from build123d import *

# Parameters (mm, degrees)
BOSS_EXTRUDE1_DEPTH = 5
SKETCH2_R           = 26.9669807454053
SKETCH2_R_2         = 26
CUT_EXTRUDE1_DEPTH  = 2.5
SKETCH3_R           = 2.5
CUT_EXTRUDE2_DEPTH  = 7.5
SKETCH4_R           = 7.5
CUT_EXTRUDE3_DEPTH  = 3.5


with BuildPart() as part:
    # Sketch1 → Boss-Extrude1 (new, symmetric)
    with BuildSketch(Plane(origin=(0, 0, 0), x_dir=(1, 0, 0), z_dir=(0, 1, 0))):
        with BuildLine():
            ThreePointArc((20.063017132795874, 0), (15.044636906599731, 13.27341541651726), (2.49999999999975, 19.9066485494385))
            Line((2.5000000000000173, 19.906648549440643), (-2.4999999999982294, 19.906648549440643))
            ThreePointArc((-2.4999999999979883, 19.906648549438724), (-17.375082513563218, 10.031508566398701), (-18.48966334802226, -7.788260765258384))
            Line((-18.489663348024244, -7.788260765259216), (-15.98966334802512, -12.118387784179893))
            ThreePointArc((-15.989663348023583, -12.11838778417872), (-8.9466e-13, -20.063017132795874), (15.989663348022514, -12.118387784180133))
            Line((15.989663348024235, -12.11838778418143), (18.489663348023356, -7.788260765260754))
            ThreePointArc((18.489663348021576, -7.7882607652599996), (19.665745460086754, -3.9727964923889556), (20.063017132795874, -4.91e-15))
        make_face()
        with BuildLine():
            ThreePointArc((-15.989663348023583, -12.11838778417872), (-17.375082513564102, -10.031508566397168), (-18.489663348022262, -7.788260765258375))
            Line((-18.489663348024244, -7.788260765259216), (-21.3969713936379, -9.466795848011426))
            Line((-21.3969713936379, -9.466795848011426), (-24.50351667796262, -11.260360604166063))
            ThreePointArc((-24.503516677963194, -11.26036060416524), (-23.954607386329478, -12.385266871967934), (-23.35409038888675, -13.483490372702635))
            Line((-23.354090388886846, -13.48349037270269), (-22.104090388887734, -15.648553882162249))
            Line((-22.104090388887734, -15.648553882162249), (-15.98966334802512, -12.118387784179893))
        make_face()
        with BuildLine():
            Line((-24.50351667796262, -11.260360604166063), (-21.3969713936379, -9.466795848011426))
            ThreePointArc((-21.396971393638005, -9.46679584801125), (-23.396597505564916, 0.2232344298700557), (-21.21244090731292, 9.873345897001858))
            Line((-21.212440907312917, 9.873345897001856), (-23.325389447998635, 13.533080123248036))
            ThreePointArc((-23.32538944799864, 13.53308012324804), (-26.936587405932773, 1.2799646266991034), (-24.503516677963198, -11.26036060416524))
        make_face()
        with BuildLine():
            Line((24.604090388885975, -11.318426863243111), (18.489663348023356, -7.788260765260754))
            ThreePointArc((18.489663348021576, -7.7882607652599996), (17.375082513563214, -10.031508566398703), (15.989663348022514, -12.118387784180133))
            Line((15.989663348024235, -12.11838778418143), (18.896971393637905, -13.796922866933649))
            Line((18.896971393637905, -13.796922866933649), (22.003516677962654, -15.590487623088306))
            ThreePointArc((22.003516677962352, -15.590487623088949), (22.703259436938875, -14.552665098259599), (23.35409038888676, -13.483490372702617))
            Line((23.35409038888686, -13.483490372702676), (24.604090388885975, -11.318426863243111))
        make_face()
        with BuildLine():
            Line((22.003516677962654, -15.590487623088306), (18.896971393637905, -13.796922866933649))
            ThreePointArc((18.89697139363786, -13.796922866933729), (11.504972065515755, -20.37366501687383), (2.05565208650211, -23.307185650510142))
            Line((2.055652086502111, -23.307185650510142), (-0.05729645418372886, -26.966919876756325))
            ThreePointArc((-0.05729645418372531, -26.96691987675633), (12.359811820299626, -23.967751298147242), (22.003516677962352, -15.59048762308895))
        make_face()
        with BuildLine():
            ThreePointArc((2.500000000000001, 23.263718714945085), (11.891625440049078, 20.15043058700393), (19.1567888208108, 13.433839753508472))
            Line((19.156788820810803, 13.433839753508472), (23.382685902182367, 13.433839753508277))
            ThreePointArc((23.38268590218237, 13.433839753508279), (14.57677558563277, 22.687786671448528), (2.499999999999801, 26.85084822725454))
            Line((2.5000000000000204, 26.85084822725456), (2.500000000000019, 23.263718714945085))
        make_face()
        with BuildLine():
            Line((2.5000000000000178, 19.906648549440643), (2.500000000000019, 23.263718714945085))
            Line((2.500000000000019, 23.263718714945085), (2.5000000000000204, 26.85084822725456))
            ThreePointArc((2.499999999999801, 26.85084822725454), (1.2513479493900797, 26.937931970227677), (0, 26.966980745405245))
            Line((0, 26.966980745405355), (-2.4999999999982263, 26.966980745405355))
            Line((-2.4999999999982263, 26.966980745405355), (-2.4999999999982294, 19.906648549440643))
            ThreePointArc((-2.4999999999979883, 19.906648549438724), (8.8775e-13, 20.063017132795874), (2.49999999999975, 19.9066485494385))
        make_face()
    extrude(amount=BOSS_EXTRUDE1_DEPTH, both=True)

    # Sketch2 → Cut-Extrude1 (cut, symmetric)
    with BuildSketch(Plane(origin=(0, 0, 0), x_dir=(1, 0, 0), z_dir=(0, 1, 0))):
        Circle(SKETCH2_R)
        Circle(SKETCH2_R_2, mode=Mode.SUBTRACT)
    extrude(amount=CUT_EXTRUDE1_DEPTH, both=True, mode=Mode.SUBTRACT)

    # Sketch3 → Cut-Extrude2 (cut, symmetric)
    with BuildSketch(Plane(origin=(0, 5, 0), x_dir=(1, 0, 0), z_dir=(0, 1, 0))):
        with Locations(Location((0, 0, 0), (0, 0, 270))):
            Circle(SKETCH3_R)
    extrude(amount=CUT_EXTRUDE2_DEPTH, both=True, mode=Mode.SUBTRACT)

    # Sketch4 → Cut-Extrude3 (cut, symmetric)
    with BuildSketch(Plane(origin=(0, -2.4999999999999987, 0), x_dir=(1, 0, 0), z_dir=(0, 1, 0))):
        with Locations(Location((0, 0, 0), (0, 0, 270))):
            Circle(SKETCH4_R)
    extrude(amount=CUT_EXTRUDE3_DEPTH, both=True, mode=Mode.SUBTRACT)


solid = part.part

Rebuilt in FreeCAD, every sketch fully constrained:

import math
import FreeCAD as App
import Part
import Sketcher
Q = App.Units.Quantity

doc = App.newDocument("Part")
params = doc.addObject("Spreadsheet::Sheet", "Params")
for row, (alias, value) in enumerate([
    ("sketch1_width", "5 mm"),
    ("sketch1_length", "5 mm"),
    ("pad1_length", "10 mm"),
    ("sketch2_diameter", "52 mm"),
    ("pocket1_length", "5 mm"),
    ("sketch3_diameter", "5 mm"),
    ("pocket2_length", "15 mm"),
    ("sketch4_diameter", "15 mm"),
    ("pocket3_length", "7 mm"),
], start=1):
    params.set(f"A{row}", alias)
    params.set(f"B{row}", "=" + value)
    params.setAlias(f"B{row}", alias)

body = doc.addObject("PartDesign::Body", "Body")
body.AllowCompound = True

# Sketch on XZ plane
sketch1 = doc.addObject("Sketcher::SketchObject", "Sketch")
body.addObject(sketch1)
sketch1.AttachmentSupport = (doc.XZ_Plane, [""])
sketch1.MapMode = "FlatFace"
sketch1.addGeometry([
    Part.LineSegment(App.Vector(2.5, -19.906649, 0), App.Vector(-2.5, -19.906649, 0)),  # 0
    Part.ArcOfCircle(Part.Circle(App.Vector(0, 0, 0), App.Vector(0, 0, 1), 20.063017), math.radians(157.158083), math.radians(262.841917)),  # 1
    Part.LineSegment(App.Vector(-18.489663, 7.788261, 0), App.Vector(-15.989663, 12.118388, 0)),  # 2
    Part.ArcOfCircle(Part.Circle(App.Vector(0, 0, 0), App.Vector(0, 0, 1), 20.063017), math.radians(37.158083), math.radians(142.841917)),  # 3
    Part.LineSegment(App.Vector(15.989663, 12.118388, 0), App.Vector(18.489663, 7.788261, 0)),  # 4
    Part.ArcOfCircle(Part.Circle(App.Vector(0, 0, 0), App.Vector(0, 0, 1), 20.063017), math.radians(-82.841917), math.radians(22.841917)),  # 5
    Part.ArcOfCircle(Part.Circle(App.Vector(0, 0, 0), App.Vector(0, 0, 1), 20.063017), math.radians(142.841917), math.radians(157.158083)),  # 6
    Part.LineSegment(App.Vector(-18.489663, 7.788261, 0), App.Vector(-21.396971, 9.466796, 0)),  # 7
    Part.ArcOfCircle(Part.Circle(App.Vector(0, 0, 0), App.Vector(0, 0, 1), 23.397662), math.radians(156.133664), math.radians(204.959657)),  # 8
    Part.LineSegment(App.Vector(-21.212441, -9.873346, 0), App.Vector(-23.325389, -13.53308, 0)),  # 9
    Part.ArcOfCircle(Part.Circle(App.Vector(0, 0, 0), App.Vector(0, 0, 1), 26.966981), math.radians(150), math.radians(210.121736)),  # 10
    Part.LineSegment(App.Vector(-23.35409, 13.48349, 0), App.Vector(-22.10409, 15.648554, 0)),  # 11
    Part.LineSegment(App.Vector(-22.10409, 15.648554, 0), App.Vector(-15.989663, 12.118388, 0)),  # 12
    Part.LineSegment(App.Vector(24.60409, 11.318427, 0), App.Vector(18.489663, 7.788261, 0)),  # 13
    Part.ArcOfCircle(Part.Circle(App.Vector(0, 0, 0), App.Vector(0, 0, 1), 20.063017), math.radians(22.841917), math.radians(37.158083)),  # 14
    Part.LineSegment(App.Vector(15.989663, 12.118388, 0), App.Vector(18.896971, 13.796923, 0)),  # 15
    Part.ArcOfCircle(Part.Circle(App.Vector(0, 0, 0), App.Vector(0, 0, 1), 23.397662), math.radians(36.133664), math.radians(84.959657)),  # 16
    Part.LineSegment(App.Vector(2.055652, 23.307186, 0), App.Vector(-0.057296, 26.96692, 0)),  # 17
    Part.ArcOfCircle(Part.Circle(App.Vector(0, 0, 0), App.Vector(0, 0, 1), 26.966981), math.radians(30), math.radians(90.121736)),  # 18
    Part.LineSegment(App.Vector(23.35409, 13.48349, 0), App.Vector(24.60409, 11.318427, 0)),  # 19
    Part.ArcOfCircle(Part.Circle(App.Vector(0, 0, 0), App.Vector(0, 0, 1), 23.397662), math.radians(-83.866336), math.radians(-35.040343)),  # 20
    Part.LineSegment(App.Vector(19.156789, -13.43384, 0), App.Vector(23.382686, -13.43384, 0)),  # 21
    Part.ArcOfCircle(Part.Circle(App.Vector(0, 0, 0), App.Vector(0, 0, 1), 26.966981), math.radians(-90), math.radians(-29.878264)),  # 22
    Part.LineSegment(App.Vector(0, -26.966981, 0), App.Vector(-2.5, -26.966981, 0)),  # 23
    Part.LineSegment(App.Vector(-2.5, -26.966981, 0), App.Vector(-2.5, -19.906649, 0)),  # 24
    Part.ArcOfCircle(Part.Circle(App.Vector(0, 0, 0), App.Vector(0, 0, 1), 20.063017), math.radians(-97.158083), math.radians(-82.841917)),  # 25
    Part.LineSegment(App.Vector(2.5, -19.906649, 0), App.Vector(2.5, -23.263719, 0)),  # 26
], False)
sketch1.addConstraint([
    Sketcher.Constraint("Coincident", 0, 2, 1, 2),
    Sketcher.Constraint("Coincident", 1, 1, 2, 1),
    Sketcher.Constraint("Coincident", 2, 2, 3, 2),
    Sketcher.Constraint("Coincident", 3, 1, 4, 1),
    Sketcher.Constraint("Coincident", 4, 2, 5, 2),
    Sketcher.Constraint("Coincident", 5, 1, 0, 1),
    Sketcher.Constraint("Coincident", 6, 2, 7, 1),
    Sketcher.Constraint("Coincident", 7, 2, 8, 1),
    Sketcher.Constraint("Coincident", 8, 2, 9, 1),
    Sketcher.Constraint("Coincident", 9, 2, 10, 2),
    Sketcher.Constraint("Tangent", 10, 1, 11, 1),
    Sketcher.Constraint("Coincident", 11, 2, 12, 1),
    Sketcher.Constraint("Coincident", 12, 2, 6, 1),
    Sketcher.Constraint("Coincident", 13, 2, 14, 1),
    Sketcher.Constraint("Coincident", 14, 2, 15, 1),
    Sketcher.Constraint("Coincident", 15, 2, 16, 1),
    Sketcher.Constraint("Coincident", 16, 2, 17, 1),
    Sketcher.Constraint("Coincident", 17, 2, 18, 2),
    Sketcher.Constraint("Tangent", 18, 1, 19, 1),
    Sketcher.Constraint("Coincident", 19, 2, 13, 1),
    Sketcher.Constraint("Coincident", 20, 2, 21, 1),
    Sketcher.Constraint("Coincident", 21, 2, 22, 2),
    Sketcher.Constraint("Tangent", 22, 1, 23, 1),
    Sketcher.Constraint("Coincident", 23, 2, 24, 1),
    Sketcher.Constraint("Coincident", 24, 2, 25, 1),
    Sketcher.Constraint("Coincident", 25, 2, 26, 1),
    Sketcher.Constraint("Coincident", 26, 2, 20, 1),
    Sketcher.Constraint("Horizontal", 0),
    Sketcher.Constraint("Horizontal", 21),
    Sketcher.Constraint("Horizontal", 23),
    Sketcher.Constraint("Vertical", 24),
    Sketcher.Constraint("Vertical", 26),
    Sketcher.Constraint("Coincident", 1, 3, -1, 1),
    Sketcher.Constraint("Coincident", 3, 3, -1, 1),
    Sketcher.Constraint("Coincident", 5, 3, -1, 1),
    Sketcher.Constraint("Coincident", 6, 3, -1, 1),
    Sketcher.Constraint("Coincident", 8, 3, -1, 1),
    Sketcher.Constraint("Coincident", 10, 3, -1, 1),
    Sketcher.Constraint("Coincident", 14, 3, -1, 1),
    Sketcher.Constraint("Coincident", 16, 3, -1, 1),
    Sketcher.Constraint("Coincident", 18, 3, -1, 1),
    Sketcher.Constraint("Coincident", 20, 3, -1, 1),
    Sketcher.Constraint("Coincident", 22, 3, -1, 1),
    Sketcher.Constraint("Coincident", 25, 3, -1, 1),
    Sketcher.Constraint("Coincident", 6, 2, 1, 1),
    Sketcher.Constraint("Coincident", 12, 2, 2, 2),
    Sketcher.Constraint("Coincident", 13, 2, 4, 2),
    Sketcher.Constraint("Coincident", 14, 2, 3, 1),
    Sketcher.Constraint("Coincident", 24, 2, 0, 2),
    Sketcher.Constraint("Equal", 8, 16),
    Sketcher.Constraint("Equal", 10, 18),
    Sketcher.Constraint("Equal", 16, 20),
    Sketcher.Constraint("Equal", 18, 22),
    Sketcher.Constraint("Perpendicular", 2, 7),
    Sketcher.Constraint("Perpendicular", 7, 9),
    Sketcher.Constraint("Parallel", 9, 11),
    Sketcher.Constraint("Perpendicular", 11, 12),
    Sketcher.Constraint("Perpendicular", 4, 13),
    Sketcher.Constraint("Parallel", 13, 15),
    Sketcher.Constraint("Perpendicular", 15, 17),
    Sketcher.Constraint("Parallel", 17, 19),
    Sketcher.Constraint("Horizontal", 2, 2, 3, 1),
    Sketcher.Constraint("Horizontal", 1, 1, 4, 2),
    Sketcher.Constraint("Horizontal", 24, 2, 25, 2),
    Sketcher.Constraint("Equal", 9, 17),
    Sketcher.Constraint("DistanceX", 0, 2, 0, 1, 5.0),
    Sketcher.Constraint("Angle", 2, Q("60 deg")),
    Sketcher.Constraint("Distance", 2, 5.0),
    Sketcher.Constraint("Radius", 10, 26.966981),
    Sketcher.Constraint("Radius", 1, 20.063017),
    Sketcher.Constraint("Radius", 8, 23.397662),
    Sketcher.Constraint("DistanceY", 20, 2, 4, 2, 21.222101),
    Sketcher.Constraint("DistanceY", 22, 1, 9, 2, 13.433901),
])
sketch1.setExpression("Constraints[65]", "Params.sketch1_width")
sketch1.setExpression("Constraints[67]", "Params.sketch1_length")
pad1 = doc.addObject("PartDesign::Pad", "Pad")
body.addObject(pad1)
pad1.Profile = sketch1
pad1.setExpression("Length", "Params.pad1_length")
pad1.Midplane = True

# Sketch on XZ plane
sketch2 = doc.addObject("Sketcher::SketchObject", "Sketch001")
body.addObject(sketch2)
sketch2.AttachmentSupport = (doc.XZ_Plane, [""])
sketch2.MapMode = "FlatFace"
sketch2.addGeometry([
    Part.Circle(App.Vector(0, 0, 0), App.Vector(0, 0, 1), 26.966981),
    Part.Circle(App.Vector(0, 0, 0), App.Vector(0, 0, 1), 26),
], False)
sketch2.addConstraint([
    Sketcher.Constraint("Coincident", 0, 3, -1, 1),
    Sketcher.Constraint("Coincident", 1, 3, -1, 1),
    Sketcher.Constraint("Diameter", 1, 52.0),
    Sketcher.Constraint("Diameter", 0, 53.933961),
])
sketch2.setExpression("Constraints[2]", "Params.sketch2_diameter")
pocket1 = doc.addObject("PartDesign::Pocket", "Pocket")
body.addObject(pocket1)
pocket1.Profile = sketch2
pocket1.setExpression("Length", "Params.pocket1_length")
pocket1.Midplane = True

# Sketch on XZ plane
sketch3 = doc.addObject("Sketcher::SketchObject", "Sketch002")
body.addObject(sketch3)
sketch3.AttachmentSupport = (doc.XZ_Plane, [""])
sketch3.MapMode = "FlatFace"
sketch3.AttachmentOffset = App.Placement(App.Vector(0, 0, -5), App.Rotation())
sketch3.addGeometry(Part.Circle(App.Vector(0, 0, 0), App.Vector(0, 0, 1), 2.5), False)
sketch3.addConstraint([
    Sketcher.Constraint("Coincident", 0, 3, -1, 1),
    Sketcher.Constraint("Diameter", 0, 5.0),
])
sketch3.setExpression("Constraints[1]", "Params.sketch3_diameter")
pocket2 = doc.addObject("PartDesign::Pocket", "Pocket001")
body.addObject(pocket2)
pocket2.Profile = sketch3
pocket2.setExpression("Length", "Params.pocket2_length")
pocket2.Midplane = True

# Sketch on XZ plane
sketch4 = doc.addObject("Sketcher::SketchObject", "Sketch003")
body.addObject(sketch4)
sketch4.AttachmentSupport = (doc.XZ_Plane, [""])
sketch4.MapMode = "FlatFace"
sketch4.AttachmentOffset = App.Placement(App.Vector(0, 0, 2.5), App.Rotation())
sketch4.addGeometry(Part.Circle(App.Vector(0, 0, 0), App.Vector(0, 0, 1), 7.5), False)
sketch4.addConstraint([
    Sketcher.Constraint("Coincident", 0, 3, -1, 1),
    Sketcher.Constraint("Diameter", 0, 15.0),
])
sketch4.setExpression("Constraints[1]", "Params.sketch4_diameter")
pocket3 = doc.addObject("PartDesign::Pocket", "Pocket002")
body.addObject(pocket3)
pocket3.Profile = sketch4
pocket3.setExpression("Length", "Params.pocket3_length")
pocket3.Midplane = True

doc.recompute()
